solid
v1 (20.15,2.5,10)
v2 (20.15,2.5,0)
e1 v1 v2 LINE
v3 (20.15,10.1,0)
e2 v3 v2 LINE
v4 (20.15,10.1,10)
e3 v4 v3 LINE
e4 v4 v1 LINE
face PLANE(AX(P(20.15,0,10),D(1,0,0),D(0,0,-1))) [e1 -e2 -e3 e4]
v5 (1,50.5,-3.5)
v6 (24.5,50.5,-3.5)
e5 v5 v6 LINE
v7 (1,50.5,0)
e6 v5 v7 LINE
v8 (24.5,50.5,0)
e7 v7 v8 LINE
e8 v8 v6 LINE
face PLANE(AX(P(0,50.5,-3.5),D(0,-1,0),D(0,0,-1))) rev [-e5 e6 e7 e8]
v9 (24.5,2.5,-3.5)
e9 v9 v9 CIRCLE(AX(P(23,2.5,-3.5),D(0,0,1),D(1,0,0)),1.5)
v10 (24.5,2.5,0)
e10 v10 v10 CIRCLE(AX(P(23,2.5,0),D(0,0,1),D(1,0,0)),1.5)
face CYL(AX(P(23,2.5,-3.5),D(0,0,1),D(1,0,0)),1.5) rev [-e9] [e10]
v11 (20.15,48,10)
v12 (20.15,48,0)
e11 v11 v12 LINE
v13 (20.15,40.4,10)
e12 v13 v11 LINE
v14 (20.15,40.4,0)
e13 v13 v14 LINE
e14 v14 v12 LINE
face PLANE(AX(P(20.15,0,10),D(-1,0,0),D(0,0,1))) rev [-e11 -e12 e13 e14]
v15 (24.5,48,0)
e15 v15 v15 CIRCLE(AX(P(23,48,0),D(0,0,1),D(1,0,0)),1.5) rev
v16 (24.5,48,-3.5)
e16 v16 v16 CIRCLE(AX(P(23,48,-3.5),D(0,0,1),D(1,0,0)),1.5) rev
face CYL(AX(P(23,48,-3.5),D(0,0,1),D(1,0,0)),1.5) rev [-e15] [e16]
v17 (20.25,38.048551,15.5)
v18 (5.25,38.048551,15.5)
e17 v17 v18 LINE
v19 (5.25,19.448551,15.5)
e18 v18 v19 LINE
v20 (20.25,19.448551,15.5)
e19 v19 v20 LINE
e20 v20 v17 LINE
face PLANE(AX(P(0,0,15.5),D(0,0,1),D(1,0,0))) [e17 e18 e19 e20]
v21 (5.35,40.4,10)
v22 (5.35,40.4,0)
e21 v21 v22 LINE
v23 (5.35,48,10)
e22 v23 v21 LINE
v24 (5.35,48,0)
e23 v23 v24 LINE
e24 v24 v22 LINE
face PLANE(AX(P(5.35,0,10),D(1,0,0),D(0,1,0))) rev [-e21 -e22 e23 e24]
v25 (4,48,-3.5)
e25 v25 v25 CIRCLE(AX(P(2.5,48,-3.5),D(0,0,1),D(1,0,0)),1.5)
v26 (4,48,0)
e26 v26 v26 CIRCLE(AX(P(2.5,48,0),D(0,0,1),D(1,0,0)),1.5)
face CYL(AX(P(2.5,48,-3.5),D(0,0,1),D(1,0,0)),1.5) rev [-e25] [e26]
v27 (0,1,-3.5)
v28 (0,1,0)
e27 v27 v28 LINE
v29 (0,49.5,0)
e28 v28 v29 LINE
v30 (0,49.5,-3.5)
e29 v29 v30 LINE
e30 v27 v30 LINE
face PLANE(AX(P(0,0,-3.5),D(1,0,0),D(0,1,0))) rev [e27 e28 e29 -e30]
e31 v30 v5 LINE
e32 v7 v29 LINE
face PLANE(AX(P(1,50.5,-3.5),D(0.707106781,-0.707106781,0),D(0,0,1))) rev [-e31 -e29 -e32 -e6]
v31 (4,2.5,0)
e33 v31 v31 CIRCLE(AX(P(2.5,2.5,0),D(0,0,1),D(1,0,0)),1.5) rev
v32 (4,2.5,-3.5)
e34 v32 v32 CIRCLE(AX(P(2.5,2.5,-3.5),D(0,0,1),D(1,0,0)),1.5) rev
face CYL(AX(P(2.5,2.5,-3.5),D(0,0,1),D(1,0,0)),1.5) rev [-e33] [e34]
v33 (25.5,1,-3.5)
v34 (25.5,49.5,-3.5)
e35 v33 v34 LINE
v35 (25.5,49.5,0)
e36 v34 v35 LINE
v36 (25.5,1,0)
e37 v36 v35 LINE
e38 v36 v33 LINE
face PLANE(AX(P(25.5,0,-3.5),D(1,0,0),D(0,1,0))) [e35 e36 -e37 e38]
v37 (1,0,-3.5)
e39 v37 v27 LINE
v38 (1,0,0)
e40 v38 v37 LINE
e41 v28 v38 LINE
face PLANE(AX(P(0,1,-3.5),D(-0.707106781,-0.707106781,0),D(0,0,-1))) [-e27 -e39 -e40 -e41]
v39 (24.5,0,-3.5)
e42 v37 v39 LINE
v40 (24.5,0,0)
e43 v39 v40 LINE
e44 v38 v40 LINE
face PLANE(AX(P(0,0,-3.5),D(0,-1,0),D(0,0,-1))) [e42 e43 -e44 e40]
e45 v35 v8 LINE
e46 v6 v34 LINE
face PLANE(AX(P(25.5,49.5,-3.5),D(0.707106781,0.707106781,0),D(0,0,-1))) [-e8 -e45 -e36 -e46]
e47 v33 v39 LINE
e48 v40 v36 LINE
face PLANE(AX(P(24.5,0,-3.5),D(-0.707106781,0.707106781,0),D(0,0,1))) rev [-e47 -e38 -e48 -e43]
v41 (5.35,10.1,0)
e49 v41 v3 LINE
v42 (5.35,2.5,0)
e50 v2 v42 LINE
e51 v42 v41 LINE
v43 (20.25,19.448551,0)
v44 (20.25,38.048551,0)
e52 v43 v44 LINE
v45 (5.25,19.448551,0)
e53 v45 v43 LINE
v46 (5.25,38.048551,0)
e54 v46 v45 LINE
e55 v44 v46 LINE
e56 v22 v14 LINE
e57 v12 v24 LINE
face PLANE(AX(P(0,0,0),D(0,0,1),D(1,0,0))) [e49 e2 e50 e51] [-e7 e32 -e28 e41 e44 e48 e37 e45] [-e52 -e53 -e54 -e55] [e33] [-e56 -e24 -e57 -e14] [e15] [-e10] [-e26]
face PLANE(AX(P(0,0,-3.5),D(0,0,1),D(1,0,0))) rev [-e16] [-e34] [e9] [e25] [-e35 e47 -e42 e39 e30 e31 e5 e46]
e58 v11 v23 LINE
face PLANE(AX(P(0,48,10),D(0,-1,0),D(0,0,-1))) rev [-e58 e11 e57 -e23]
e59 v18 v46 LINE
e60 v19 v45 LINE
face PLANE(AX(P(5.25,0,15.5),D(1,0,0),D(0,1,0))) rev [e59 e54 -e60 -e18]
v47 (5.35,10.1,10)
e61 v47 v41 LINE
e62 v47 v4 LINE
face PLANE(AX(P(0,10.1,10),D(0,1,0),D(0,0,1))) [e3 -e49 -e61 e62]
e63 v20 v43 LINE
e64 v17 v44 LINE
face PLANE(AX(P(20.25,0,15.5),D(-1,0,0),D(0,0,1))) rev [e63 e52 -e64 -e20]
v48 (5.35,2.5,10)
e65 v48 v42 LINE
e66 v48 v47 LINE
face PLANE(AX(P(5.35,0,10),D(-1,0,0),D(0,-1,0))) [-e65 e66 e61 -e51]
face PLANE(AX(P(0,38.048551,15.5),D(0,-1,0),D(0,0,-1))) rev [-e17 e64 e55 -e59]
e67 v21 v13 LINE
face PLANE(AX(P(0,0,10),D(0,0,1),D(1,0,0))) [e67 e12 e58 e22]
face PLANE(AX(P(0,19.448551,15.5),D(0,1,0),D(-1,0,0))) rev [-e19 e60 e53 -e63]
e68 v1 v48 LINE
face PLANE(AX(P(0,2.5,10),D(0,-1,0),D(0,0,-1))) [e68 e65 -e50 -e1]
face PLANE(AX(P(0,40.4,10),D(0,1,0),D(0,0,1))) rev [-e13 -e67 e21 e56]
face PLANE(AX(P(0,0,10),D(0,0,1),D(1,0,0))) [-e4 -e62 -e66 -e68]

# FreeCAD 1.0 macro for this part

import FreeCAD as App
import Part
import Sketcher

V = App.Vector
Q = App.Units.Quantity


def edges_at(feature, points):
    """Names of the edges that pass closest to the given points."""
    edges = feature.Shape.Edges
    near = lambda p: min(range(len(edges)), key=lambda i: edges[i].distToShape(Part.Vertex(*p))[0])
    return sorted({f"Edge{near(p) + 1}" for p in points})

doc = App.newDocument("Part")
body = doc.addObject("PartDesign::Body", "Body")

sketch1 = doc.addObject("Sketcher::SketchObject", "Sketch")
body.addObject(sketch1)
sketch1.AttachmentSupport = (doc.XY_Plane, [""])
sketch1.MapMode = "FlatFace"
sketch1.addGeometry(Part.LineSegment(V(0, 50.5, 0), V(0, 0, 0)), False)
sketch1.addGeometry(Part.LineSegment(V(0, 0, 0), V(25.5, 0, 0)), False)
sketch1.addGeometry(Part.LineSegment(V(25.5, 0, 0), V(25.5, 50.5, 0)), False)
sketch1.addGeometry(Part.LineSegment(V(25.5, 50.5, 0), V(0, 50.5, 0)), False)
sketch1.addGeometry(Part.Circle(V(2.5, 2.5, 0), V(0, 0, 1), 1.5), False)
sketch1.addGeometry(Part.Circle(V(23, 2.5, 0), V(0, 0, 1), 1.5), False)
sketch1.addGeometry(Part.Circle(V(2.5, 48, 0), V(0, 0, 1), 1.5), False)
sketch1.addGeometry(Part.Circle(V(23, 48, 0), V(0, 0, 1), 1.5), False)
sketch1.addConstraint(Sketcher.Constraint("Coincident", 0, 2, 1, 1))
sketch1.addConstraint(Sketcher.Constraint("Coincident", 1, 2, 2, 1))
sketch1.addConstraint(Sketcher.Constraint("Coincident", 2, 2, 3, 1))
sketch1.addConstraint(Sketcher.Constraint("Coincident", 3, 2, 0, 1))
sketch1.addConstraint(Sketcher.Constraint("Vertical", 0))
sketch1.addConstraint(Sketcher.Constraint("Horizontal", 1))
sketch1.addConstraint(Sketcher.Constraint("Vertical", 2))
sketch1.addConstraint(Sketcher.Constraint("Horizontal", 3))
sketch1.addConstraint(Sketcher.Constraint("Coincident", 0, 2, -1, 1))
sketch1.addConstraint(Sketcher.Constraint("Equal", 4, 5))
sketch1.addConstraint(Sketcher.Constraint("Equal", 5, 6))
sketch1.addConstraint(Sketcher.Constraint("Equal", 6, 7))
sketch1.addConstraint(Sketcher.Constraint("Horizontal", 4, 3, 5, 3))
sketch1.addConstraint(Sketcher.Constraint("Horizontal", 6, 3, 7, 3))
sketch1.addConstraint(Sketcher.Constraint("Vertical", 4, 3, 6, 3))
sketch1.addConstraint(Sketcher.Constraint("Vertical", 5, 3, 7, 3))
sketch1.addConstraint(Sketcher.Constraint("Diameter", 4, Q("3 mm")))
sketch1.addConstraint(Sketcher.Constraint("DistanceX", 1, 1, 1, 2, Q("25.5 mm")))
sketch1.addConstraint(Sketcher.Constraint("DistanceY", 0, 2, 0, 1, Q("50.5 mm")))
sketch1.addConstraint(Sketcher.Constraint("DistanceX", -1, 1, 5, 3, Q("23 mm")))
sketch1.addConstraint(Sketcher.Constraint("DistanceY", -1, 1, 6, 3, Q("48 mm")))
sketch1.addConstraint(Sketcher.Constraint("DistanceX", 4, 3, 1, 2, Q("23 mm")))
sketch1.addConstraint(Sketcher.Constraint("DistanceY", 5, 3, 2, 2, Q("48 mm")))
pad1 = doc.addObject("PartDesign::Pad", "Pad")
body.addObject(pad1)
pad1.Profile = sketch1
pad1.Length = 3.5
pad1.Reversed = True

sketch2 = doc.addObject("Sketcher::SketchObject", "Sketch001")
body.addObject(sketch2)
sketch2.AttachmentSupport = (doc.XY_Plane, [""])
sketch2.MapMode = "FlatFace"
sketch2.addGeometry(Part.LineSegment(V(5, 48, 0), V(5, 40, 0)), False)
sketch2.addGeometry(Part.LineSegment(V(5, 40, 0), V(20, 40, 0)), False)
sketch2.addGeometry(Part.LineSegment(V(20, 40, 0), V(20, 48, 0)), False)
sketch2.addGeometry(Part.LineSegment(V(20, 48, 0), V(5, 48, 0)), False)
sketch2.addGeometry(Part.LineSegment(V(5, 10, 0), V(5, 2, 0)), False)
sketch2.addGeometry(Part.LineSegment(V(5, 2, 0), V(20, 2, 0)), False)
sketch2.addGeometry(Part.LineSegment(V(20, 2, 0), V(20, 10, 0)), False)
sketch2.addGeometry(Part.LineSegment(V(20, 10, 0), V(5, 10, 0)), False)
sketch2.addConstraint(Sketcher.Constraint("Coincident", 0, 2, 1, 1))
sketch2.addConstraint(Sketcher.Constraint("Coincident", 1, 2, 2, 1))
sketch2.addConstraint(Sketcher.Constraint("Coincident", 2, 2, 3, 1))
sketch2.addConstraint(Sketcher.Constraint("Coincident", 3, 2, 0, 1))
sketch2.addConstraint(Sketcher.Constraint("Coincident", 4, 2, 5, 1))
sketch2.addConstraint(Sketcher.Constraint("Coincident", 5, 2, 6, 1))
sketch2.addConstraint(Sketcher.Constraint("Coincident", 6, 2, 7, 1))
sketch2.addConstraint(Sketcher.Constraint("Coincident", 7, 2, 4, 1))
sketch2.addConstraint(Sketcher.Constraint("Vertical", 0))
sketch2.addConstraint(Sketcher.Constraint("Horizontal", 1))
sketch2.addConstraint(Sketcher.Constraint("Vertical", 2))
sketch2.addConstraint(Sketcher.Constraint("Horizontal", 3))
sketch2.addConstraint(Sketcher.Constraint("Vertical", 4))
sketch2.addConstraint(Sketcher.Constraint("Horizontal", 5))
sketch2.addConstraint(Sketcher.Constraint("Vertical", 6))
sketch2.addConstraint(Sketcher.Constraint("Horizontal", 7))
sketch2.addConstraint(Sketcher.Constraint("Vertical", 3, 2, 4, 2))
sketch2.addConstraint(Sketcher.Constraint("Vertical", 2, 2, 5, 2))
sketch2.addConstraint(Sketcher.Constraint("Equal", 2, 4))
sketch2.addConstraint(Sketcher.Constraint("DistanceX", 1, 1, 1, 2, Q("14.8 mm")))
sketch2.addConstraint(Sketcher.Constraint("DistanceY", 0, 2, 0, 1, Q("7.6 mm")))
sketch2.addConstraint(Sketcher.Constraint("DistanceY", -1, 1, 2, 2, Q("48 mm")))
sketch2.addConstraint(Sketcher.Constraint("DistanceY", -1, 1, 4, 2, Q("2.5 mm")))
sketch2.addConstraint(Sketcher.Constraint("DistanceX", -1, 1, 0, 2, Q("5.35 mm")))
pad2 = doc.addObject("PartDesign::Pad", "Pad001")
body.addObject(pad2)
pad2.Profile = sketch2
pad2.Length = 10

sketch3 = doc.addObject("Sketcher::SketchObject", "Sketch002")
body.addObject(sketch3)
sketch3.AttachmentSupport = (doc.XY_Plane, [""])
sketch3.MapMode = "FlatFace"
sketch3.addGeometry(Part.LineSegment(V(5, 38, 0), V(5, 19, 0)), False)
sketch3.addGeometry(Part.LineSegment(V(5, 19, 0), V(20, 19, 0)), False)
sketch3.addGeometry(Part.LineSegment(V(20, 19, 0), V(20, 38, 0)), False)
sketch3.addGeometry(Part.LineSegment(V(20, 38, 0), V(5, 38, 0)), False)
sketch3.addConstraint(Sketcher.Constraint("Coincident", 0, 2, 1, 1))
sketch3.addConstraint(Sketcher.Constraint("Coincident", 1, 2, 2, 1))
sketch3.addConstraint(Sketcher.Constraint("Coincident", 2, 2, 3, 1))
sketch3.addConstraint(Sketcher.Constraint("Coincident", 3, 2, 0, 1))
sketch3.addConstraint(Sketcher.Constraint("Vertical", 0))
sketch3.addConstraint(Sketcher.Constraint("Horizontal", 1))
sketch3.addConstraint(Sketcher.Constraint("Vertical", 2))
sketch3.addConstraint(Sketcher.Constraint("Horizontal", 3))
sketch3.addConstraint(Sketcher.Constraint("DistanceX", 1, 1, 1, 2, Q("15 mm")))
sketch3.addConstraint(Sketcher.Constraint("DistanceY", 0, 2, 0, 1, Q("18.6 mm")))
sketch3.addConstraint(Sketcher.Constraint("DistanceX", -1, 1, 0, 2, Q("5.25 mm")))
sketch3.addConstraint(Sketcher.Constraint("DistanceY", -1, 1, 0, 2, Q("19.448551 mm")))
pad3 = doc.addObject("PartDesign::Pad", "Pad002")
body.addObject(pad3)
pad3.Profile = sketch3
pad3.Length = 15.5
doc.recompute()

chamfer = doc.addObject("PartDesign::Chamfer", "Chamfer")
body.addObject(chamfer)
chamfer.Base = (pad3, edges_at(pad3, [
    (0, 0, -1.75),
    (0, 50.5, -1.75),
    (25.5, 50.5, -1.75),
    (25.5, 0, -1.75),
]))
chamfer.Size = 1

doc.recompute()
